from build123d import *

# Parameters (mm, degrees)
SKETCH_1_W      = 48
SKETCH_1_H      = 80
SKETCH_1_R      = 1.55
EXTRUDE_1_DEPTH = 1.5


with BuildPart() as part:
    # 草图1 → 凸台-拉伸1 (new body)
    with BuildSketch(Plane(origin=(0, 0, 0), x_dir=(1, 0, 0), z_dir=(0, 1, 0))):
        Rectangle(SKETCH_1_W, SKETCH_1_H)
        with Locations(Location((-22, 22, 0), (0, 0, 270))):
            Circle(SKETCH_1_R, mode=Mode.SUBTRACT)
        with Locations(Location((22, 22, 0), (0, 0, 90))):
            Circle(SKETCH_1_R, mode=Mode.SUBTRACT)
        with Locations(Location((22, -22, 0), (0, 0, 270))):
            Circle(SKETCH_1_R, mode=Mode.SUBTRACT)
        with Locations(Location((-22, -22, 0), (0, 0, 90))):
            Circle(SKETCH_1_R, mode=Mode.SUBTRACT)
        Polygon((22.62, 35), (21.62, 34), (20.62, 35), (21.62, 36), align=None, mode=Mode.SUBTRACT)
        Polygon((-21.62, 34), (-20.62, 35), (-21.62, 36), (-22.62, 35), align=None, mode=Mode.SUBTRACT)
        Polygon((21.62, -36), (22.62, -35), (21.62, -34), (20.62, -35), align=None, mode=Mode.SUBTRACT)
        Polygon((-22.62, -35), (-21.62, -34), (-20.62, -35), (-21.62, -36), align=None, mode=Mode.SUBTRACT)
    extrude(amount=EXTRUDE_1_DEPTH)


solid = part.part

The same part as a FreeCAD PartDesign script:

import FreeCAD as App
import Part
import Sketcher

V = App.Vector

doc = App.newDocument("Part")
params = doc.addObject("Spreadsheet::Sheet", "Params")
for row, (alias, value) in enumerate([
    ("sketch1_diameter", "3.1 mm"),
    ("sketch1_width", "48 mm"),
    ("sketch1_height", "80 mm"),
    ("pad1_length", "1.5 mm"),
], start=1):
    params.set(f"A{row}", alias)
    params.set(f"B{row}", "=" + value)
    params.setAlias(f"B{row}", alias)

body = doc.addObject("PartDesign::Body", "Body")

# Sketch on XZ plane
sketch1 = doc.addObject("Sketcher::SketchObject", "Sketch")
body.addObject(sketch1)
sketch1.AttachmentSupport = (doc.XZ_Plane, [""])
sketch1.MapMode = "FlatFace"
sketch1.addGeometry(Part.LineSegment(V(-24, -40, 0), V(-24, 40, 0)), False)
sketch1.addGeometry(Part.LineSegment(V(-24, 40, 0), V(24, 40, 0)), False)
sketch1.addGeometry(Part.LineSegment(V(24, 40, 0), V(24, -40, 0)), False)
sketch1.addGeometry(Part.LineSegment(V(24, -40, 0), V(-24, -40, 0)), False)
sketch1.addGeometry(Part.LineSegment(V(-21.62, 36, 0), V(-22.62, 35, 0)), False)
sketch1.addGeometry(Part.LineSegment(V(-22.62, 35, 0), V(-21.62, 34, 0)), False)
sketch1.addGeometry(Part.LineSegment(V(-21.62, 34, 0), V(-20.62, 35, 0)), False)
sketch1.addGeometry(Part.LineSegment(V(-20.62, 35, 0), V(-21.62, 36, 0)), False)
sketch1.addGeometry(Part.Circle(V(-22, 22, 0), V(0, 0, 1), 1.55), False)
sketch1.addGeometry(Part.LineSegment(V(22.62, 35, 0), V(21.62, 36, 0)), False)
sketch1.addGeometry(Part.LineSegment(V(21.62, 36, 0), V(20.62, 35, 0)), False)
sketch1.addGeometry(Part.LineSegment(V(20.62, 35, 0), V(21.62, 34, 0)), False)
sketch1.addGeometry(Part.LineSegment(V(21.62, 34, 0), V(22.62, 35, 0)), False)
sketch1.addGeometry(Part.Circle(V(22, 22, 0), V(0, 0, 1), 1.55), False)
sketch1.addGeometry(Part.Circle(V(-22, -22, 0), V(0, 0, 1), 1.55), False)
sketch1.addGeometry(Part.LineSegment(V(-20.62, -35, 0), V(-21.62, -34, 0)), False)
sketch1.addGeometry(Part.LineSegment(V(-21.62, -34, 0), V(-22.62, -35, 0)), False)
sketch1.addGeometry(Part.LineSegment(V(-22.62, -35, 0), V(-21.62, -36, 0)), False)
sketch1.addGeometry(Part.LineSegment(V(-21.62, -36, 0), V(-20.62, -35, 0)), False)
sketch1.addGeometry(Part.Circle(V(22, -22, 0), V(0, 0, 1), 1.55), False)
sketch1.addGeometry(Part.LineSegment(V(21.62, -36, 0), V(22.62, -35, 0)), False)
sketch1.addGeometry(Part.LineSegment(V(22.62, -35, 0), V(21.62, -34, 0)), False)
sketch1.addGeometry(Part.LineSegment(V(21.62, -34, 0), V(20.62, -35, 0)), False)
sketch1.addGeometry(Part.LineSegment(V(20.62, -35, 0), V(21.62, -36, 0)), False)
sketch1.addConstraint(Sketcher.Constraint("Coincident", 0, 2, 1, 1))
sketch1.addConstraint(Sketcher.Constraint("Coincident", 1, 2, 2, 1))
sketch1.addConstraint(Sketcher.Constraint("Coincident", 2, 2, 3, 1))
sketch1.addConstraint(Sketcher.Constraint("Coincident", 3, 2, 0, 1))
sketch1.addConstraint(Sketcher.Constraint("Coincident", 4, 2, 5, 1))
sketch1.addConstraint(Sketcher.Constraint("Coincident", 5, 2, 6, 1))
sketch1.addConstraint(Sketcher.Constraint("Coincident", 6, 2, 7, 1))
sketch1.addConstraint(Sketcher.Constraint("Coincident", 7, 2, 4, 1))
sketch1.addConstraint(Sketcher.Constraint("Coincident", 9, 2, 10, 1))
sketch1.addConstraint(Sketcher.Constraint("Coincident", 10, 2, 11, 1))
sketch1.addConstraint(Sketcher.Constraint("Coincident", 11, 2, 12, 1))
sketch1.addConstraint(Sketcher.Constraint("Coincident", 12, 2, 9, 1))
sketch1.addConstraint(Sketcher.Constraint("Coincident", 15, 2, 16, 1))
sketch1.addConstraint(Sketcher.Constraint("Coincident", 16, 2, 17, 1))
sketch1.addConstraint(Sketcher.Constraint("Coincident", 17, 2, 18, 1))
sketch1.addConstraint(Sketcher.Constraint("Coincident", 18, 2, 15, 1))
sketch1.addConstraint(Sketcher.Constraint("Coincident", 20, 2, 21, 1))
sketch1.addConstraint(Sketcher.Constraint("Coincident", 21, 2, 22, 1))
sketch1.addConstraint(Sketcher.Constraint("Coincident", 22, 2, 23, 1))
sketch1.addConstraint(Sketcher.Constraint("Coincident", 23, 2, 20, 1))
sketch1.addConstraint(Sketcher.Constraint("Vertical", 0))
sketch1.addConstraint(Sketcher.Constraint("Horizontal", 1))
sketch1.addConstraint(Sketcher.Constraint("Vertical", 2))
sketch1.addConstraint(Sketcher.Constraint("Horizontal", 3))
sketch1.addConstraint(Sketcher.Constraint("Equal", 8, 13))
sketch1.addConstraint(Sketcher.Constraint("Equal", 13, 14))
sketch1.addConstraint(Sketcher.Constraint("Equal", 14, 19))
sketch1.addConstraint(Sketcher.Constraint("Symmetric", 13, 3, 14, 3, -1, 1))
sketch1.addConstraint(Sketcher.Constraint("Symmetric", 8, 3, 19, 3, -1, 1))
sketch1.addConstraint(Sketcher.Constraint("Symmetric", 0, 2, 2, 2, -1, 1))
sketch1.addConstraint(Sketcher.Constraint("Symmetric", 11, 2, 15, 2, -1, 1))
sketch1.addConstraint(Sketcher.Constraint("Symmetric", 12, 2, 16, 2, -1, 1))
sketch1.addConstraint(Sketcher.Constraint("Symmetric", 9, 2, 17, 2, -1, 1))
sketch1.addConstraint(Sketcher.Constraint("Symmetric", 10, 2, 18, 2, -1, 1))
sketch1.addConstraint(Sketcher.Constraint("Symmetric", 4, 2, 20, 2, -1, 1))
sketch1.addConstraint(Sketcher.Constraint("Symmetric", 5, 2, 21, 2, -1, 1))
sketch1.addConstraint(Sketcher.Constraint("Symmetric", 6, 2, 22, 2, -1, 1))
sketch1.addConstraint(Sketcher.Constraint("Symmetric", 7, 2, 23, 2, -1, 1))
sketch1.addConstraint(Sketcher.Constraint("Symmetric", 8, 3, 13, 3, -2))
sketch1.addConstraint(Sketcher.Constraint("Symmetric", 7, 2, 9, 2, -2))
sketch1.addConstraint(Sketcher.Constraint("Symmetric", 6, 2, 10, 2, -2))
sketch1.addConstraint(Sketcher.Constraint("Symmetric", 5, 2, 11, 2, -2))
sketch1.addConstraint(Sketcher.Constraint("Symmetric", 4, 2, 12, 2, -2))
sketch1.addConstraint(Sketcher.Constraint("Perpendicular", 4, 5))
sketch1.addConstraint(Sketcher.Constraint("Perpendicular", 5, 6))
sketch1.addConstraint(Sketcher.Constraint("Perpendicular", 6, 7))
sketch1.addConstraint(Sketcher.Constraint("Parallel", 7, 9))
sketch1.addConstraint(Sketcher.Constraint("Horizontal", 4, 2, 6, 2))
sketch1.addConstraint(Sketcher.Constraint("Diameter", 8, 3.1))
sketch1.addConstraint(Sketcher.Constraint("DistanceX", 1, 1, 1, 2, 48.0))
sketch1.addConstraint(Sketcher.Constraint("DistanceY", 0, 1, 0, 2, 80.0))
sketch1.addConstraint(Sketcher.Constraint("DistanceX", 8, 3, -1, 1, 22.0))
sketch1.addConstraint(Sketcher.Constraint("DistanceY", -1, 1, 8, 3, 22.0))
sketch1.addConstraint(Sketcher.Constraint("DistanceY", -1, 1, 4, 2, 35.0))
sketch1.addConstraint(Sketcher.Constraint("DistanceY", -1, 1, 5, 2, 34.0))
sketch1.addConstraint(Sketcher.Constraint("DistanceX", 4, 2, -1, 1, 22.62))
sketch1.setExpression("Constraints[48]", "Params.sketch1_diameter")
sketch1.setExpression("Constraints[49]", "Params.sketch1_width")
sketch1.setExpression("Constraints[50]", "Params.sketch1_height")
pad1 = doc.addObject("PartDesign::Pad", "Pad")
body.addObject(pad1)
pad1.Profile = sketch1
pad1.setExpression("Length", "Params.pad1_length")
pad1.Reversed = True

doc.recompute()
